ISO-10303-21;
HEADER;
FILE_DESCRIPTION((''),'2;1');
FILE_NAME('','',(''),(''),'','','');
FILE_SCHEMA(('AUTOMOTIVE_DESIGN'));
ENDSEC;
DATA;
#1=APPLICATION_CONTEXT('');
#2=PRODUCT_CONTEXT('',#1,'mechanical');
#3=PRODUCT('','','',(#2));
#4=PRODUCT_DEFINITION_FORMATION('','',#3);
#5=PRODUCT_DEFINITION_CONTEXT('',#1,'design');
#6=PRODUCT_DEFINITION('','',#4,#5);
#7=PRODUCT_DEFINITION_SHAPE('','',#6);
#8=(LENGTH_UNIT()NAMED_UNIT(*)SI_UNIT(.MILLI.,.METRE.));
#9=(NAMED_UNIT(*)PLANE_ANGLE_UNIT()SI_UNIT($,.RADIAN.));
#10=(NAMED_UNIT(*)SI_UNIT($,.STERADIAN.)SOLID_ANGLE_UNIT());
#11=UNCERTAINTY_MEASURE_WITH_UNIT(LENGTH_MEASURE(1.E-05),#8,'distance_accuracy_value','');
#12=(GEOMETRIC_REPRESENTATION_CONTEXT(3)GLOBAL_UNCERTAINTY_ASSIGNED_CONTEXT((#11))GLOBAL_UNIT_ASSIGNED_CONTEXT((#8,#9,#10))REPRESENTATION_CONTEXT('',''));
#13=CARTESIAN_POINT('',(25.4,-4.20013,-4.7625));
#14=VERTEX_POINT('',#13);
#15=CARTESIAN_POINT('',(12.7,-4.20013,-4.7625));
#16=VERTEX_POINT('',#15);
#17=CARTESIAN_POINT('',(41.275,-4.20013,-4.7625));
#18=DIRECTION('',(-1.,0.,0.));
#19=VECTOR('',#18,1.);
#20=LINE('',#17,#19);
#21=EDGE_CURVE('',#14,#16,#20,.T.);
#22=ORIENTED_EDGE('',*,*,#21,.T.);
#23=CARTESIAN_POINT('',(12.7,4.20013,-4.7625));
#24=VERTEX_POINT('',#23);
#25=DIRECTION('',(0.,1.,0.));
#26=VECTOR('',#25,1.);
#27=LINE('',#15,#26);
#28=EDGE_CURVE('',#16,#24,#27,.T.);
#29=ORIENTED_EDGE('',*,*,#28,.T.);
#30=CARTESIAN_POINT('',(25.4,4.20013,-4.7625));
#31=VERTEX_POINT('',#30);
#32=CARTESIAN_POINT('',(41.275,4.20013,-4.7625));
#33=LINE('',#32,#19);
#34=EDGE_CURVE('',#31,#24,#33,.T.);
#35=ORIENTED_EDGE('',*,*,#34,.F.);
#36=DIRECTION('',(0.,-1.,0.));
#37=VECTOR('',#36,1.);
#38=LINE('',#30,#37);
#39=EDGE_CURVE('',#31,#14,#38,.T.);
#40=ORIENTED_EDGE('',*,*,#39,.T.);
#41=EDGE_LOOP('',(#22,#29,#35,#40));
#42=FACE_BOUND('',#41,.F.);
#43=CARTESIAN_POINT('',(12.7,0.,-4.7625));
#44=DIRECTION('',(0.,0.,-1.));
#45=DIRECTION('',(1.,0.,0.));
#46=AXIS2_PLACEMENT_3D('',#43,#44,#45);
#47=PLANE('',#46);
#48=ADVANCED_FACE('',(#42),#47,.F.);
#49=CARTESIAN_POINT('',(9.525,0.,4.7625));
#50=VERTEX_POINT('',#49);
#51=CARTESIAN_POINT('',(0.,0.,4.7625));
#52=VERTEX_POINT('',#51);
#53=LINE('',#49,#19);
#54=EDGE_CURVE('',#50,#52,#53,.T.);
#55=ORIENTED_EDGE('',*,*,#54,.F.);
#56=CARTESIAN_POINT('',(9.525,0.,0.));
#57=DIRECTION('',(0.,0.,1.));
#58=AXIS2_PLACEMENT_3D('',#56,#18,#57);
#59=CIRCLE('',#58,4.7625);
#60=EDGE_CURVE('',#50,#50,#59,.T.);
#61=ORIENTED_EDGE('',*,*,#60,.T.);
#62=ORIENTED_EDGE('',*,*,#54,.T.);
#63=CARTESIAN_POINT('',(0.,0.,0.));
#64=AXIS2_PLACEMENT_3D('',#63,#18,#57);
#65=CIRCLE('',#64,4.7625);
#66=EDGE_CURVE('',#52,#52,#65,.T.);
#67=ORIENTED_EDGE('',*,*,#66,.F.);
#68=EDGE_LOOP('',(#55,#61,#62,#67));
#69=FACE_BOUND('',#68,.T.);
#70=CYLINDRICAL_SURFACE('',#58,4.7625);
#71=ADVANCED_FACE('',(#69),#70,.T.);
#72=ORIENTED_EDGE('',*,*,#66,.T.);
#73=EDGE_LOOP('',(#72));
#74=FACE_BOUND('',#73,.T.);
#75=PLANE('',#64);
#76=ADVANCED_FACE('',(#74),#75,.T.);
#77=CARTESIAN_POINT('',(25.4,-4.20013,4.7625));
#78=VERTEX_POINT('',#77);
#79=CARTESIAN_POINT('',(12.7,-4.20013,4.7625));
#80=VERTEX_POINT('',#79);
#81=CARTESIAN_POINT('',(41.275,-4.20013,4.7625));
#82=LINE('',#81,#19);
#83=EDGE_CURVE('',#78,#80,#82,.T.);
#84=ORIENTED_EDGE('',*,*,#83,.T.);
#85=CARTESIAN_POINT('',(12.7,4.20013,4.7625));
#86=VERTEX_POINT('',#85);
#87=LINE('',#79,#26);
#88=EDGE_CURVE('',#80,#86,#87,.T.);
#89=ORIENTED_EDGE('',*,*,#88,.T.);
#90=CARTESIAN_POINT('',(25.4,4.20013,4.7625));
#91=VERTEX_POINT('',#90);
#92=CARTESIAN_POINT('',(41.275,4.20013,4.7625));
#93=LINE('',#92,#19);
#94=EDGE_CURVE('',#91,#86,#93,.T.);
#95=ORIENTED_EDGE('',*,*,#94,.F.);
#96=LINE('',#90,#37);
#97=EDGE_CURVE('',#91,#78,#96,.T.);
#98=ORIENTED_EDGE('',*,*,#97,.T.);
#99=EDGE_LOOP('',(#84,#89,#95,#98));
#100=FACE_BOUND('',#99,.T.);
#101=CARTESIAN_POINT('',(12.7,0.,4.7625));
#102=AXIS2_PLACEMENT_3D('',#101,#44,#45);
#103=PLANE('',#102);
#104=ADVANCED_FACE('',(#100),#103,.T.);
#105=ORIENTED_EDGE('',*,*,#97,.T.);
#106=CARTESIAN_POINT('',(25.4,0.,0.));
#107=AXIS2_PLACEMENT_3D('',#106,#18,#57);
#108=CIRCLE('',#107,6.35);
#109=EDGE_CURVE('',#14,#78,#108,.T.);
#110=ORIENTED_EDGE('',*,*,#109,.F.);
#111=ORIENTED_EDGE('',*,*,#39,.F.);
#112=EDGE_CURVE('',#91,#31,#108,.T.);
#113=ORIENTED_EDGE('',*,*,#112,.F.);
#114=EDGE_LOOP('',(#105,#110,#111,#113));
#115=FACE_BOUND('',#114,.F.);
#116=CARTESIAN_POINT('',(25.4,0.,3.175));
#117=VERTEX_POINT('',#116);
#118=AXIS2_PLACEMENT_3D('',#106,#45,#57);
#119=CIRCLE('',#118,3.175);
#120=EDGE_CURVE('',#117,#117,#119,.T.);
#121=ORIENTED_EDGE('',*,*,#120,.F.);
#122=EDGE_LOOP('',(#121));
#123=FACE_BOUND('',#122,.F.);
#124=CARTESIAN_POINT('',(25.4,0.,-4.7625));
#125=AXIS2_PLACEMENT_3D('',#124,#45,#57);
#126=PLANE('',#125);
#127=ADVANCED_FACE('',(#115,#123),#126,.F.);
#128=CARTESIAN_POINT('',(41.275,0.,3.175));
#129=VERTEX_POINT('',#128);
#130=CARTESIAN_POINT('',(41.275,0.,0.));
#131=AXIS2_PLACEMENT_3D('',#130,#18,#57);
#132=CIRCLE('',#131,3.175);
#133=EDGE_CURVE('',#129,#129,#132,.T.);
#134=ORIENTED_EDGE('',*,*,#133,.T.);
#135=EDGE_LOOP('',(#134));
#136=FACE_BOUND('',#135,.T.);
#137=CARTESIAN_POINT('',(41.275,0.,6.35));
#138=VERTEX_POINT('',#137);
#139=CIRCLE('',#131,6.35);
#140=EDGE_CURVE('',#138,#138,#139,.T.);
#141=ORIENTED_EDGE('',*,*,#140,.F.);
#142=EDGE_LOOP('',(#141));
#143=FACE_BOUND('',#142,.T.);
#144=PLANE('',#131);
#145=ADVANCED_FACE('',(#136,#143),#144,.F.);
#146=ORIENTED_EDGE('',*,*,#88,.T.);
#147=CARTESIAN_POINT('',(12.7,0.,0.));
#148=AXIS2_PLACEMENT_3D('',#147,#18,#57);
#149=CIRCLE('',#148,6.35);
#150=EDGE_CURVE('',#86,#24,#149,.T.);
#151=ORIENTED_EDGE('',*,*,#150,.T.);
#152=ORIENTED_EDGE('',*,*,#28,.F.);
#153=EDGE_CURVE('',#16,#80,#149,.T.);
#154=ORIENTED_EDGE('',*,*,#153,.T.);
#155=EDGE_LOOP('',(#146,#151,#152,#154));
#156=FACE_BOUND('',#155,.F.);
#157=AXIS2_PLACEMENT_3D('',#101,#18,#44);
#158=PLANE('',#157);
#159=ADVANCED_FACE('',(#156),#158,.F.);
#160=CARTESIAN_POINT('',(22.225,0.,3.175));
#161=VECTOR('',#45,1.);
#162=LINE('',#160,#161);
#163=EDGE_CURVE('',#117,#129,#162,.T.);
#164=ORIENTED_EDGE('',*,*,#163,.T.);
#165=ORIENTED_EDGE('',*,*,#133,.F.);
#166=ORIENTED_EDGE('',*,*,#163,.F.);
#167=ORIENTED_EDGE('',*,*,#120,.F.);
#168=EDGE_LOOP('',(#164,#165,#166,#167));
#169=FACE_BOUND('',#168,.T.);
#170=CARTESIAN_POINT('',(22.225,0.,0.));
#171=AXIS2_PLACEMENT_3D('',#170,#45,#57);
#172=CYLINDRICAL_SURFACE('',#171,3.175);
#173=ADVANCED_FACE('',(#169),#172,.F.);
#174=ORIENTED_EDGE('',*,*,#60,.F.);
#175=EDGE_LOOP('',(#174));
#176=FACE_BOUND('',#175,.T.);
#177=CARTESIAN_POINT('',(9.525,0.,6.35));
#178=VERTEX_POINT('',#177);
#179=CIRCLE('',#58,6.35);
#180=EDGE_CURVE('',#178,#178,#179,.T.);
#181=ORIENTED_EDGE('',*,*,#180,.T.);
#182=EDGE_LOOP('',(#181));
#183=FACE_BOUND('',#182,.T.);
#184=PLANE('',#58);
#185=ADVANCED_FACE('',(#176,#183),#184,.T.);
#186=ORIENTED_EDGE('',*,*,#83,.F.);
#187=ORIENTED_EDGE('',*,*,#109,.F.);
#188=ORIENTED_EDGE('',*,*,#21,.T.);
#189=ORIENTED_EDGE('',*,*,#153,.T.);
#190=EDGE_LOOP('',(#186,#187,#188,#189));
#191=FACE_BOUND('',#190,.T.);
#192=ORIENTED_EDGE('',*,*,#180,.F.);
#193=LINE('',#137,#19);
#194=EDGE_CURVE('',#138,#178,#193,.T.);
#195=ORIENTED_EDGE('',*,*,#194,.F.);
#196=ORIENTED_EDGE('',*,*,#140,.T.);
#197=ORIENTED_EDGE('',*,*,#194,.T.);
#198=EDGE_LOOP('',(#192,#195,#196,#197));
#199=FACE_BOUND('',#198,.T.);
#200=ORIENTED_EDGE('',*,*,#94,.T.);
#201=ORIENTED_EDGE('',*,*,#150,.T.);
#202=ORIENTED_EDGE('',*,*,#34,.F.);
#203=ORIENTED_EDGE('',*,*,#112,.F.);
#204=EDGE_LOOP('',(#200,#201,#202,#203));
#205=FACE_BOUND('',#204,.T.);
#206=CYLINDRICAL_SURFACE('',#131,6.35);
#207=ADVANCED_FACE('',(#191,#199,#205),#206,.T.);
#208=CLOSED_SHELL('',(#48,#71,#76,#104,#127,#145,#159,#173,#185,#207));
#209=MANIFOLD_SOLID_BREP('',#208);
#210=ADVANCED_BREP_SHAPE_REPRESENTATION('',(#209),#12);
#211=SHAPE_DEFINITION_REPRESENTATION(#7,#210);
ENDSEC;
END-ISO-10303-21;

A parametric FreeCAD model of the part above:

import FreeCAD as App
import Part
import Sketcher
from FreeCAD import Vector
Q = App.Units.Quantity

doc = App.newDocument("Part")
params = doc.addObject("Spreadsheet::Sheet", "Params")
for row, (alias, value) in enumerate([
    ("sketch1_width", "0.75 in"),
    ("sketch1_width2", "1.25 in"),
    ("sketch1_width3", "0.875 in"),
    ("sketch1_height", "0.1875 in"),
    ("sketch1_height2", "0.125 in"),
    ("revolution_angle", "360 deg"),
    ("sketch2_width", "0.5 in"),
    ("sketch2_height", "0.375 in"),
], start=1):
    params.set(f"A{row}", alias)
    params.set(f"B{row}", "=" + value)
    params.setAlias(f"B{row}", alias)

body = doc.addObject("PartDesign::Body", "Body")

sketch1 = doc.addObject("Sketcher::SketchObject", "Sketch")
body.addObject(sketch1)
sketch1.AttachmentSupport = (doc.XZ_Plane, [""])
sketch1.MapMode = "FlatFace"
sketch1.addGeometry(Part.LineSegment(Vector(0, 4.7625, 0), Vector(0, 0, 0)), False)
sketch1.addGeometry(Part.LineSegment(Vector(0, 0, 0), Vector(22.225, 0, 0)), False)
sketch1.addGeometry(Part.LineSegment(Vector(22.225, 0, 0), Vector(22.225, 3.175, 0)), False)
sketch1.addGeometry(Part.LineSegment(Vector(22.225, 3.175, 0), Vector(41.275, 3.175, 0)), False)
sketch1.addGeometry(Part.LineSegment(Vector(41.275, 3.175, 0), Vector(41.275, 6.35, 0)), False)
sketch1.addGeometry(Part.LineSegment(Vector(41.275, 6.35, 0), Vector(9.525, 6.35, 0)), False)
sketch1.addGeometry(Part.LineSegment(Vector(9.525, 6.35, 0), Vector(9.525, 4.7625, 0)), False)
sketch1.addGeometry(Part.LineSegment(Vector(9.525, 4.7625, 0), Vector(0, 4.7625, 0)), False)
sketch1.addConstraint(Sketcher.Constraint("Coincident", 0, 2, 1, 1))
sketch1.addConstraint(Sketcher.Constraint("Coincident", 1, 2, 2, 1))
sketch1.addConstraint(Sketcher.Constraint("Coincident", 2, 2, 3, 1))
sketch1.addConstraint(Sketcher.Constraint("Coincident", 3, 2, 4, 1))
sketch1.addConstraint(Sketcher.Constraint("Coincident", 4, 2, 5, 1))
sketch1.addConstraint(Sketcher.Constraint("Coincident", 5, 2, 6, 1))
sketch1.addConstraint(Sketcher.Constraint("Coincident", 6, 2, 7, 1))
sketch1.addConstraint(Sketcher.Constraint("Coincident", 7, 2, 0, 1))
sketch1.addConstraint(Sketcher.Constraint("Vertical", 0))
sketch1.addConstraint(Sketcher.Constraint("Horizontal", 1))
sketch1.addConstraint(Sketcher.Constraint("Vertical", 2))
sketch1.addConstraint(Sketcher.Constraint("Horizontal", 3))
sketch1.addConstraint(Sketcher.Constraint("Vertical", 4))
sketch1.addConstraint(Sketcher.Constraint("Horizontal", 5))
sketch1.addConstraint(Sketcher.Constraint("Vertical", 6))
sketch1.addConstraint(Sketcher.Constraint("Horizontal", 7))
sketch1.addConstraint(Sketcher.Constraint("Coincident", 0, 2, -1, 1))
sketch1.addConstraint(Sketcher.Constraint("Equal", 2, 4))
sketch1.addConstraint(Sketcher.Constraint("DistanceX", 3, 1, 3, 2, Q("0.75 in")))
sketch1.addConstraint(Sketcher.Constraint("DistanceX", 5, 2, 5, 1, Q("1.25 in")))
sketch1.addConstraint(Sketcher.Constraint("DistanceX", 1, 1, 1, 2, Q("0.875 in")))
sketch1.addConstraint(Sketcher.Constraint("DistanceY", 0, 2, 0, 1, Q("0.1875 in")))
sketch1.addConstraint(Sketcher.Constraint("DistanceY", 2, 1, 2, 2, Q("0.125 in")))
sketch1.setExpression("Constraints[18]", "Params.sketch1_width")
sketch1.setExpression("Constraints[19]", "Params.sketch1_width2")
sketch1.setExpression("Constraints[20]", "Params.sketch1_width3")
sketch1.setExpression("Constraints[21]", "Params.sketch1_height")
sketch1.setExpression("Constraints[22]", "Params.sketch1_height2")
revolution = doc.addObject("PartDesign::Revolution", "Revolution")
body.addObject(revolution)
revolution.Profile = sketch1
revolution.ReferenceAxis = (sketch1, ["H_Axis"])
revolution.setExpression("Angle", "Params.revolution_angle")

sketch2 = doc.addObject("Sketcher::SketchObject", "Sketch001")
body.addObject(sketch2)
sketch2.AttachmentSupport = (doc.XZ_Plane, [""])
sketch2.MapMode = "FlatFace"
sketch2.addGeometry(Part.LineSegment(Vector(12.7, 4.7625, 0), Vector(12.7, -4.7625, 0)), False)
sketch2.addGeometry(Part.LineSegment(Vector(12.7, -4.7625, 0), Vector(25.4, -4.7625, 0)), False)
sketch2.addGeometry(Part.LineSegment(Vector(25.4, -4.7625, 0), Vector(25.4, 4.7625, 0)), False)
sketch2.addGeometry(Part.LineSegment(Vector(25.4, 4.7625, 0), Vector(12.7, 4.7625, 0)), False)
sketch2.addConstraint(Sketcher.Constraint("Coincident", 0, 2, 1, 1))
sketch2.addConstraint(Sketcher.Constraint("Coincident", 1, 2, 2, 1))
sketch2.addConstraint(Sketcher.Constraint("Coincident", 2, 2, 3, 1))
sketch2.addConstraint(Sketcher.Constraint("Coincident", 3, 2, 0, 1))
sketch2.addConstraint(Sketcher.Constraint("Vertical", 0))
sketch2.addConstraint(Sketcher.Constraint("Horizontal", 1))
sketch2.addConstraint(Sketcher.Constraint("Vertical", 2))
sketch2.addConstraint(Sketcher.Constraint("Horizontal", 3))
sketch2.addConstraint(Sketcher.Constraint("DistanceX", 1, 1, 1, 2, Q("0.5 in")))
sketch2.addConstraint(Sketcher.Constraint("DistanceX", -1, 1, 1, 2, Q("1 in")))
sketch2.addConstraint(Sketcher.Constraint("DistanceY", 0, 2, 0, 1, Q("0.375 in")))
sketch2.addConstraint(Sketcher.Constraint("DistanceY", 0, 2, -1, 1, Q("0.1875 in")))
sketch2.setExpression("Constraints[8]", "Params.sketch2_width")
sketch2.setExpression("Constraints[10]", "Params.sketch2_height")
pocket1 = doc.addObject("PartDesign::Pocket", "Pocket")
body.addObject(pocket1)
pocket1.Profile = sketch2
pocket1.Type = "ThroughAll"
pocket1.Midplane = True

doc.recompute()
